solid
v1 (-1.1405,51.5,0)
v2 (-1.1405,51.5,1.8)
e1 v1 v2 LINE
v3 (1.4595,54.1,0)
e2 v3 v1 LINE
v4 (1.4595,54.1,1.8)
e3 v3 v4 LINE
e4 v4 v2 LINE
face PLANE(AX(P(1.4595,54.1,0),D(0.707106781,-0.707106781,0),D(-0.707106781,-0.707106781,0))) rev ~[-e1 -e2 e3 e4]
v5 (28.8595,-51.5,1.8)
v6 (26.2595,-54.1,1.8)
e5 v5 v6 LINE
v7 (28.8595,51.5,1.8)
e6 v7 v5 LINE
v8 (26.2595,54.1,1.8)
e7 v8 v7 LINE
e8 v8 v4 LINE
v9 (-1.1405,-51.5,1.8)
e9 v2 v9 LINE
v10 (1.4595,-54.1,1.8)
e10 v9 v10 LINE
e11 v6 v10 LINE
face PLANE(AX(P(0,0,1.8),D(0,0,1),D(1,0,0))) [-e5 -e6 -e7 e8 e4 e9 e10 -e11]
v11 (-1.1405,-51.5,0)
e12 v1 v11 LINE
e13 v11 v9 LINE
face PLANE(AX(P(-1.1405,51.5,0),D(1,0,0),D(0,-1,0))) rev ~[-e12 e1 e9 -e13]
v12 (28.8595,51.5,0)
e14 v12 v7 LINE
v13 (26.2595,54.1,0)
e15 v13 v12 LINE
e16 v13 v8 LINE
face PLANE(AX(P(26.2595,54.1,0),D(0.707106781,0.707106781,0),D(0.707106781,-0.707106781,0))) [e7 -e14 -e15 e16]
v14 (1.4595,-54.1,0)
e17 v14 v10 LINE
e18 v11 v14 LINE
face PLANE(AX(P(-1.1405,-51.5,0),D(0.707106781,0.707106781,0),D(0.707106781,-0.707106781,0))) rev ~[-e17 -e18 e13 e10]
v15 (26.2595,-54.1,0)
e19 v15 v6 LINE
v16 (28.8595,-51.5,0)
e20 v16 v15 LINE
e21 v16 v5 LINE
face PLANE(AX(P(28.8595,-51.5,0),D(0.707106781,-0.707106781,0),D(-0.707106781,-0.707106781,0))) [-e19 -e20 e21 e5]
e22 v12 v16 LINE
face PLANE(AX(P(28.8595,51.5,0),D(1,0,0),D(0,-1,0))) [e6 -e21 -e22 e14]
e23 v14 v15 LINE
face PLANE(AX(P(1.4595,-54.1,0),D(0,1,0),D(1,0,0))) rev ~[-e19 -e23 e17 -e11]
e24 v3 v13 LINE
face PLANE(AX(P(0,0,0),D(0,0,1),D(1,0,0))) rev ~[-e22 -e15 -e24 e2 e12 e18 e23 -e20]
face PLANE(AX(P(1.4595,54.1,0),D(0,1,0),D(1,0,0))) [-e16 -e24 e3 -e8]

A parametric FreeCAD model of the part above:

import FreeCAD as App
import Part
import Sketcher
Q = App.Units.Quantity

doc = App.newDocument("Part")
params = doc.addObject("Spreadsheet::Sheet", "Params")
for row, (alias, value) in enumerate([
    ("sketch1_height", "103 mm"),
    ("sketch1_width", "24.8 mm"),
    ("pad1_length", "1.8 mm"),
], start=1):
    params.set(f"A{row}", alias)
    params.set(f"B{row}", "=" + value)
    params.setAlias(f"B{row}", alias)

body = doc.addObject("PartDesign::Body", "Body")

# Sketch on XY plane
sketch1 = doc.addObject("Sketcher::SketchObject", "Sketch")
body.addObject(sketch1)
sketch1.AttachmentSupport = (doc.XY_Plane, [""])
sketch1.MapMode = "FlatFace"
sketch1.addGeometry(Part.LineSegment(App.Vector(1.4595, -54.1, 0), App.Vector(26.2595, -54.1, 0)), False)
sketch1.addGeometry(Part.LineSegment(App.Vector(26.2595, -54.1, 0), App.Vector(28.8595, -51.5, 0)), False)
sketch1.addGeometry(Part.LineSegment(App.Vector(28.8595, -51.5, 0), App.Vector(28.8595, 51.5, 0)), False)
sketch1.addGeometry(Part.LineSegment(App.Vector(28.8595, 51.5, 0), App.Vector(26.2595, 54.1, 0)), False)
sketch1.addGeometry(Part.LineSegment(App.Vector(26.2595, 54.1, 0), App.Vector(1.4595, 54.1, 0)), False)
sketch1.addGeometry(Part.LineSegment(App.Vector(1.4595, 54.1, 0), App.Vector(-1.1405, 51.5, 0)), False)
sketch1.addGeometry(Part.LineSegment(App.Vector(-1.1405, 51.5, 0), App.Vector(-1.1405, -51.5, 0)), False)
sketch1.addGeometry(Part.LineSegment(App.Vector(-1.1405, -51.5, 0), App.Vector(1.4595, -54.1, 0)), False)
sketch1.addConstraint(Sketcher.Constraint("Coincident", 0, 2, 1, 1))
sketch1.addConstraint(Sketcher.Constraint("Coincident", 1, 2, 2, 1))
sketch1.addConstraint(Sketcher.Constraint("Coincident", 2, 2, 3, 1))
sketch1.addConstraint(Sketcher.Constraint("Coincident", 3, 2, 4, 1))
sketch1.addConstraint(Sketcher.Constraint("Coincident", 4, 2, 5, 1))
sketch1.addConstraint(Sketcher.Constraint("Coincident", 5, 2, 6, 1))
sketch1.addConstraint(Sketcher.Constraint("Coincident", 6, 2, 7, 1))
sketch1.addConstraint(Sketcher.Constraint("Coincident", 7, 2, 0, 1))
sketch1.addConstraint(Sketcher.Constraint("Horizontal", 0))
sketch1.addConstraint(Sketcher.Constraint("Vertical", 2))
sketch1.addConstraint(Sketcher.Constraint("Horizontal", 4))
sketch1.addConstraint(Sketcher.Constraint("Vertical", 6))
sketch1.addConstraint(Sketcher.Constraint("Symmetric", 0, 2, 3, 2, -1))
sketch1.addConstraint(Sketcher.Constraint("Perpendicular", 1, 3))
sketch1.addConstraint(Sketcher.Constraint("Perpendicular", 3, 5))
sketch1.addConstraint(Sketcher.Constraint("Perpendicular", 5, 7))
sketch1.addConstraint(Sketcher.Constraint("Horizontal", 2, 2, 5, 2))
sketch1.addConstraint(Sketcher.Constraint("Horizontal", 1, 2, 6, 2))
sketch1.addConstraint(Sketcher.Constraint("Vertical", 4, 2, 7, 2))
sketch1.addConstraint(Sketcher.Constraint("DistanceX", 5, 2, 2, 2, Q("30 mm")))
sketch1.addConstraint(Sketcher.Constraint("DistanceY", 2, 1, 2, 2, Q("103 mm")))
sketch1.addConstraint(Sketcher.Constraint("DistanceX", 0, 1, 0, 2, Q("24.8 mm")))
sketch1.addConstraint(Sketcher.Constraint("DistanceX", -1, 1, 0, 2, Q("26.2595 mm")))
sketch1.setExpression("Constraints[20]", "Params.sketch1_height")
sketch1.setExpression("Constraints[21]", "Params.sketch1_width")
pad1 = doc.addObject("PartDesign::Pad", "Pad")
body.addObject(pad1)
pad1.Profile = sketch1
pad1.setExpression("Length", "Params.pad1_length")

doc.recompute()
